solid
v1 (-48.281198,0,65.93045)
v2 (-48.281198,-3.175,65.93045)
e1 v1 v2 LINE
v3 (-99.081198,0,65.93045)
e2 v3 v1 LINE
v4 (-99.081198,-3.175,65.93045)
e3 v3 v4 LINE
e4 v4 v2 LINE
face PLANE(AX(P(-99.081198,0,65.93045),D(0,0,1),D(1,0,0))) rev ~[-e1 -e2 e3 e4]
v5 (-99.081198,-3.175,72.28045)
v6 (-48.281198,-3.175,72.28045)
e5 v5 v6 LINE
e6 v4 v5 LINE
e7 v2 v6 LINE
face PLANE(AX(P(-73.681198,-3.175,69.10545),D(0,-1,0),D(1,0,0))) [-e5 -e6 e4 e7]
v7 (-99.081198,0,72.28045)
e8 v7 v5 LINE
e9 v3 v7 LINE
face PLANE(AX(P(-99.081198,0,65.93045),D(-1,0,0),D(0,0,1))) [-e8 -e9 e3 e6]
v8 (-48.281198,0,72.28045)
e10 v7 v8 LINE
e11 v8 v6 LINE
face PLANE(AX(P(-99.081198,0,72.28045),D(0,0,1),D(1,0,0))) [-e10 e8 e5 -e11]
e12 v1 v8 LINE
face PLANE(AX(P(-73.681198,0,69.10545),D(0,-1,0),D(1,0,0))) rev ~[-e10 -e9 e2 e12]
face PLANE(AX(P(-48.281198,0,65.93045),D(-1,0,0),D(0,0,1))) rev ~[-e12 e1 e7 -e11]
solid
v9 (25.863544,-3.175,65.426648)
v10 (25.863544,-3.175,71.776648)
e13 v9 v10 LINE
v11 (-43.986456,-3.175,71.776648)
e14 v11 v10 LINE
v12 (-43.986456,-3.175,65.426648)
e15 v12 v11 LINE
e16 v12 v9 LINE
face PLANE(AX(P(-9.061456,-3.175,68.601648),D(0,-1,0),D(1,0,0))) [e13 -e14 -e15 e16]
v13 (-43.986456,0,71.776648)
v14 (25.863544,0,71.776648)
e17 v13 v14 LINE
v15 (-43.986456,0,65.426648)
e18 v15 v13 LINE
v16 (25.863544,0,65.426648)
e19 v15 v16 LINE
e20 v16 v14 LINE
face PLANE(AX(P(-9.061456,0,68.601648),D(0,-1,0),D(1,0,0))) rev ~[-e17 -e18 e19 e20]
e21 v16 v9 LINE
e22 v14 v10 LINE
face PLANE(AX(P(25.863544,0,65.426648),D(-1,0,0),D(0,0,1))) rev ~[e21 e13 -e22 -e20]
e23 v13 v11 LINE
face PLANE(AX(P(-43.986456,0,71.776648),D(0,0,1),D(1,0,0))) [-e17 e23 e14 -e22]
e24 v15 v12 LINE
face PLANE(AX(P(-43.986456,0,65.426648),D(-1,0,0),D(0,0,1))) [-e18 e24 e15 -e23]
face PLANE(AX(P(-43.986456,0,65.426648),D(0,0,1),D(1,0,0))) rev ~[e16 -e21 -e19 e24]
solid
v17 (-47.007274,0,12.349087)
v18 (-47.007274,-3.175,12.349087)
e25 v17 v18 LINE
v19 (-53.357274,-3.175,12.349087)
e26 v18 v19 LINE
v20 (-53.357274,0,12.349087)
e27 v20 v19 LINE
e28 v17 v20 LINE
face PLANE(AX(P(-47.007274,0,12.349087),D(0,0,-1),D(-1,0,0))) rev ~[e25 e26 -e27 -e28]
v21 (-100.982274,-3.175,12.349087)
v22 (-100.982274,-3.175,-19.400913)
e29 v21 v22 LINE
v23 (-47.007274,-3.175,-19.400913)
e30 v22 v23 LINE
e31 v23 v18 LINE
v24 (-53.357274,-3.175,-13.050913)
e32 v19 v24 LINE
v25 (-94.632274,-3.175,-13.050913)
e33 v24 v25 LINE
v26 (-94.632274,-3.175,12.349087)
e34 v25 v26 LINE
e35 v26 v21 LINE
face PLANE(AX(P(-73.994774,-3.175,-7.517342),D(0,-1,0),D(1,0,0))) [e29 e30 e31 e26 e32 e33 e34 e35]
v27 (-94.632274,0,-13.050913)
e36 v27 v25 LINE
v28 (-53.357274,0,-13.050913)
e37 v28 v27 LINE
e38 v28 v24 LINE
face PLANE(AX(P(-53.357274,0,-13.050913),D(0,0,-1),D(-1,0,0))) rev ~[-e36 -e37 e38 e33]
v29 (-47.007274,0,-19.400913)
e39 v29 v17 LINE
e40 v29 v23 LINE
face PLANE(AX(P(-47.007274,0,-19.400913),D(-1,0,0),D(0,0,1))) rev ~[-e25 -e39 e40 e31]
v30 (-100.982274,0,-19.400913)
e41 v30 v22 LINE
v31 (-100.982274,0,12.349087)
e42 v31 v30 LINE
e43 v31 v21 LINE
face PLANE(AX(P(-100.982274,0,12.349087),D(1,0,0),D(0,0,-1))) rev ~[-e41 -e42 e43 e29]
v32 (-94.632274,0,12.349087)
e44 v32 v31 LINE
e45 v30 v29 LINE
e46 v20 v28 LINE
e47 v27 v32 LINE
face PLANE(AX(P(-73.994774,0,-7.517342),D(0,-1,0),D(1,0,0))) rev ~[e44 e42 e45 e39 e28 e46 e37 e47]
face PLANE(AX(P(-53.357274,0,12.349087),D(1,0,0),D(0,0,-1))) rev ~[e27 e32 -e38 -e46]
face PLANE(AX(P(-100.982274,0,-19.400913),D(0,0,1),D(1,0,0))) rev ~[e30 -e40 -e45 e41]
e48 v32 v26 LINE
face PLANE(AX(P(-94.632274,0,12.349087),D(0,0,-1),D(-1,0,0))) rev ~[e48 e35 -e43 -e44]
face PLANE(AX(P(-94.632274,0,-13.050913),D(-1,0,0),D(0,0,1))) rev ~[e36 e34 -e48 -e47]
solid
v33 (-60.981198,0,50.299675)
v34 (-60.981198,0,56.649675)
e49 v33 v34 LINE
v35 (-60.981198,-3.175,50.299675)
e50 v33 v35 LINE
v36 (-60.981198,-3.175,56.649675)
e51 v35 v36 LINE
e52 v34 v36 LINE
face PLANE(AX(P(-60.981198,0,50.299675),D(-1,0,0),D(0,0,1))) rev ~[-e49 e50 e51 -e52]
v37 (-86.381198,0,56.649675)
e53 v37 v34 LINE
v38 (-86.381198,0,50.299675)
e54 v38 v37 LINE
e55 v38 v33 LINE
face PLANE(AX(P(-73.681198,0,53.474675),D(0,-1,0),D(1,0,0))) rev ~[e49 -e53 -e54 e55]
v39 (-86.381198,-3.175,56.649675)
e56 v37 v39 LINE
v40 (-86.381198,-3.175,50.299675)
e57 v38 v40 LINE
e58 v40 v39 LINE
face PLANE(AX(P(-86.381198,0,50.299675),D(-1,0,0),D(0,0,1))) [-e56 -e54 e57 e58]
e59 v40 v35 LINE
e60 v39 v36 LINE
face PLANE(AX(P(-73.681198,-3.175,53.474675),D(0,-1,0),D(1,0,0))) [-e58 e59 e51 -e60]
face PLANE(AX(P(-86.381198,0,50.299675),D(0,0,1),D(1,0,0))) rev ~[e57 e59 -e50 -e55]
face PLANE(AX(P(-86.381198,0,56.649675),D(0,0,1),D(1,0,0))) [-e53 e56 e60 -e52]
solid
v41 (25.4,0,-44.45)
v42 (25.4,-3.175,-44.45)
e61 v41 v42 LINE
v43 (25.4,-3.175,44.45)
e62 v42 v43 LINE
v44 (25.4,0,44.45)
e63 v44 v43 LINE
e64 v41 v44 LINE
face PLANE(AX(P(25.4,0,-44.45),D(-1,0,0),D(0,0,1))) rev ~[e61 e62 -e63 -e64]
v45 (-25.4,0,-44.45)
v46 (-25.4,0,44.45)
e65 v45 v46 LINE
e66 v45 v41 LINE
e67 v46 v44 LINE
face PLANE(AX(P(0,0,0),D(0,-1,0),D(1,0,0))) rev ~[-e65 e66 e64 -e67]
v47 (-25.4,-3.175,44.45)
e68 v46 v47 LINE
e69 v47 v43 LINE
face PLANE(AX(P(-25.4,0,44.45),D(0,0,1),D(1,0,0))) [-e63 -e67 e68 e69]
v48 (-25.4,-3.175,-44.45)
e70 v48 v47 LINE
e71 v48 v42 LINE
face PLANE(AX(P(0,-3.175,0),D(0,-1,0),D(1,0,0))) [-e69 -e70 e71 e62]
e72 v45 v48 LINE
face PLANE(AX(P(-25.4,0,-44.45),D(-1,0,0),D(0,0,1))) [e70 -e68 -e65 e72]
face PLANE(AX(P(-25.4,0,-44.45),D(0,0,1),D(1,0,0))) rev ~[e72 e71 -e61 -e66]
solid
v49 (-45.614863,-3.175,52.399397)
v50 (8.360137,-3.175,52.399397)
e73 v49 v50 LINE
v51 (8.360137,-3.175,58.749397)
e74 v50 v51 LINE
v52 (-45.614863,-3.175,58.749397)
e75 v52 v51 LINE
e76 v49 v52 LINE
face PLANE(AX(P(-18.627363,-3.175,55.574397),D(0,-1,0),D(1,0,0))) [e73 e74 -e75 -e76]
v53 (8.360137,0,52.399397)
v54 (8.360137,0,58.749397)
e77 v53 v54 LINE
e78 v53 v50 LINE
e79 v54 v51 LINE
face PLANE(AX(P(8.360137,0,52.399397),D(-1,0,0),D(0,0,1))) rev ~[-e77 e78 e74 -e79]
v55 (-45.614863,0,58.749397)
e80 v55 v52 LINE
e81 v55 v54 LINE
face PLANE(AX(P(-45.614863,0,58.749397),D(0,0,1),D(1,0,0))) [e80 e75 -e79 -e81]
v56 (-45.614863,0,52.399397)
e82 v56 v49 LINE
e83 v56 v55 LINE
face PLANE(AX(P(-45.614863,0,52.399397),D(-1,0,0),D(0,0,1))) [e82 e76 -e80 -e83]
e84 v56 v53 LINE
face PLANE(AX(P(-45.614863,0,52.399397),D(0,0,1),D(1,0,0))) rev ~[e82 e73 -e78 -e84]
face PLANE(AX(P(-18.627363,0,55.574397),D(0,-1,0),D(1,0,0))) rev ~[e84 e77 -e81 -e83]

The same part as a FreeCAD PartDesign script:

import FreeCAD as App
import Part
import Sketcher

V = App.Vector
Q = App.Units.Quantity

doc = App.newDocument("Part")
body = doc.addObject("PartDesign::Body", "Body")

# Sketch on XZ plane
sketch1 = doc.addObject("Sketcher::SketchObject", "Sketch")
body.addObject(sketch1)
sketch1.AttachmentSupport = (doc.XZ_Plane, [""])
sketch1.MapMode = "FlatFace"
sketch1.addGeometry([
    Part.LineSegment(V(-25, 44, 0), V(-25, -44, 0)),
    Part.LineSegment(V(-25, -44, 0), V(25, -44, 0)),
    Part.LineSegment(V(25, -44, 0), V(25, 44, 0)),
    Part.LineSegment(V(25, 44, 0), V(-25, 44, 0)),
], False)
sketch1.addConstraint([
    Sketcher.Constraint("Coincident", 0, 2, 1, 1),
    Sketcher.Constraint("Coincident", 1, 2, 2, 1),
    Sketcher.Constraint("Coincident", 2, 2, 3, 1),
    Sketcher.Constraint("Coincident", 3, 2, 0, 1),
    Sketcher.Constraint("Vertical", 0),
    Sketcher.Constraint("Horizontal", 1),
    Sketcher.Constraint("Vertical", 2),
    Sketcher.Constraint("Horizontal", 3),
    Sketcher.Constraint("Symmetric", 0, 2, 2, 2, -1, 1),
    Sketcher.Constraint("DistanceX", 1, 1, 1, 2, Q("2 in")),
    Sketcher.Constraint("DistanceY", 0, 2, 0, 1, Q("3.5 in")),
])
pad1 = doc.addObject("PartDesign::Pad", "Pad")
body.addObject(pad1)
pad1.Profile = sketch1
pad1.Length = Q("0.125 in")
body2 = doc.addObject("PartDesign::Body", "Body001")

# Sketch on XZ plane
sketch2 = doc.addObject("Sketcher::SketchObject", "Sketch001")
body2.addObject(sketch2)
sketch2.AttachmentSupport = (doc.getObject("XZ_Plane001"), [""])
sketch2.MapMode = "FlatFace"
sketch2.addGeometry([
    Part.LineSegment(V(-95, 12, 0), V(-101, 12, 0)),  # 0
    Part.LineSegment(V(-101, 12, 0), V(-101, -19, 0)),  # 1
    Part.LineSegment(V(-101, -19, 0), V(-47, -19, 0)),  # 2
    Part.LineSegment(V(-47, -19, 0), V(-47, 12, 0)),  # 3
    Part.LineSegment(V(-47, 12, 0), V(-53, 12, 0)),  # 4
    Part.LineSegment(V(-53, 12, 0), V(-53, -13, 0)),  # 5
    Part.LineSegment(V(-53, -13, 0), V(-95, -13, 0)),  # 6
    Part.LineSegment(V(-95, -13, 0), V(-95, 12, 0)),  # 7
], False)
sketch2.addConstraint([
    Sketcher.Constraint("Coincident", 0, 2, 1, 1),
    Sketcher.Constraint("Coincident", 1, 2, 2, 1),
    Sketcher.Constraint("Coincident", 2, 2, 3, 1),
    Sketcher.Constraint("Coincident", 3, 2, 4, 1),
    Sketcher.Constraint("Coincident", 4, 2, 5, 1),
    Sketcher.Constraint("Coincident", 5, 2, 6, 1),
    Sketcher.Constraint("Coincident", 6, 2, 7, 1),
    Sketcher.Constraint("Coincident", 7, 2, 0, 1),
    Sketcher.Constraint("Horizontal", 0),
    Sketcher.Constraint("Vertical", 1),
    Sketcher.Constraint("Horizontal", 2),
    Sketcher.Constraint("Vertical", 3),
    Sketcher.Constraint("Horizontal", 4),
    Sketcher.Constraint("Vertical", 5),
    Sketcher.Constraint("Horizontal", 6),
    Sketcher.Constraint("Vertical", 7),
    Sketcher.Constraint("Horizontal", 0, 2, 3, 2),
    Sketcher.Constraint("Equal", 0, 4),
    Sketcher.Constraint("DistanceY", 5, 2, 5, 1, Q("1 in")),
    Sketcher.Constraint("DistanceX", 0, 2, 0, 1, Q("0.25 in")),
    Sketcher.Constraint("DistanceY", 1, 2, 1, 1, Q("1.25 in")),
    Sketcher.Constraint("DistanceX", 2, 1, 2, 2, Q("2.125 in")),
    Sketcher.Constraint("DistanceX", 0, 2, -1, 1, 100.982274),
    Sketcher.Constraint("DistanceY", -1, 1, 0, 2, 12.349087),
])
pad2 = doc.addObject("PartDesign::Pad", "Pad001")
body2.addObject(pad2)
pad2.Profile = sketch2
pad2.Length = Q("0.125 in")
body3 = doc.addObject("PartDesign::Body", "Body002")
body3.AllowCompound = True

# Sketch on XZ plane
sketch3 = doc.addObject("Sketcher::SketchObject", "Sketch002")
body3.addObject(sketch3)
sketch3.AttachmentSupport = (doc.getObject("XZ_Plane002"), [""])
sketch3.MapMode = "FlatFace"
sketch3.addGeometry([
    Part.LineSegment(V(-99, 72, 0), V(-99, 66, 0)),  # 0
    Part.LineSegment(V(-99, 66, 0), V(-48, 66, 0)),  # 1
    Part.LineSegment(V(-48, 66, 0), V(-48, 72, 0)),  # 2
    Part.LineSegment(V(-48, 72, 0), V(-99, 72, 0)),  # 3
    Part.LineSegment(V(-86, 57, 0), V(-86, 50, 0)),  # 4
    Part.LineSegment(V(-86, 50, 0), V(-61, 50, 0)),  # 5
    Part.LineSegment(V(-61, 50, 0), V(-61, 57, 0)),  # 6
    Part.LineSegment(V(-61, 57, 0), V(-86, 57, 0)),  # 7
    Part.LineSegment(V(-46, 59, 0), V(-46, 52, 0)),  # 8
    Part.LineSegment(V(-46, 52, 0), V(8, 52, 0)),  # 9
    Part.LineSegment(V(8, 52, 0), V(8, 59, 0)),  # 10
    Part.LineSegment(V(8, 59, 0), V(-46, 59, 0)),  # 11
    Part.LineSegment(V(-44, 72, 0), V(-44, 65, 0)),  # 12
    Part.LineSegment(V(-44, 65, 0), V(26, 65, 0)),  # 13
    Part.LineSegment(V(26, 65, 0), V(26, 72, 0)),  # 14
    Part.LineSegment(V(26, 72, 0), V(-44, 72, 0)),  # 15
], False)
sketch3.addConstraint([
    Sketcher.Constraint("Coincident", 0, 2, 1, 1),
    Sketcher.Constraint("Coincident", 1, 2, 2, 1),
    Sketcher.Constraint("Coincident", 2, 2, 3, 1),
    Sketcher.Constraint("Coincident", 3, 2, 0, 1),
    Sketcher.Constraint("Coincident", 4, 2, 5, 1),
    Sketcher.Constraint("Coincident", 5, 2, 6, 1),
    Sketcher.Constraint("Coincident", 6, 2, 7, 1),
    Sketcher.Constraint("Coincident", 7, 2, 4, 1),
    Sketcher.Constraint("Coincident", 8, 2, 9, 1),
    Sketcher.Constraint("Coincident", 9, 2, 10, 1),
    Sketcher.Constraint("Coincident", 10, 2, 11, 1),
    Sketcher.Constraint("Coincident", 11, 2, 8, 1),
    Sketcher.Constraint("Coincident", 12, 2, 13, 1),
    Sketcher.Constraint("Coincident", 13, 2, 14, 1),
    Sketcher.Constraint("Coincident", 14, 2, 15, 1),
    Sketcher.Constraint("Coincident", 15, 2, 12, 1),
    Sketcher.Constraint("Vertical", 0),
    Sketcher.Constraint("Horizontal", 1),
    Sketcher.Constraint("Vertical", 2),
    Sketcher.Constraint("Horizontal", 3),
    Sketcher.Constraint("Vertical", 4),
    Sketcher.Constraint("Horizontal", 5),
    Sketcher.Constraint("Vertical", 6),
    Sketcher.Constraint("Horizontal", 7),
    Sketcher.Constraint("Vertical", 8),
    Sketcher.Constraint("Horizontal", 9),
    Sketcher.Constraint("Vertical", 10),
    Sketcher.Constraint("Horizontal", 11),
    Sketcher.Constraint("Vertical", 12),
    Sketcher.Constraint("Horizontal", 13),
    Sketcher.Constraint("Vertical", 14),
    Sketcher.Constraint("Horizontal", 15),
    Sketcher.Constraint("Equal", 2, 4),
    Sketcher.Constraint("Equal", 6, 8),
    Sketcher.Constraint("Equal", 10, 12),
    Sketcher.Constraint("DistanceX", 1, 1, 1, 2, Q("2 in")),
    Sketcher.Constraint("DistanceX", 5, 1, 5, 2, Q("1 in")),
    Sketcher.Constraint("DistanceX", 13, 1, 13, 2, Q("2.75 in")),
    Sketcher.Constraint("DistanceY", 0, 2, 0, 1, Q("0.25 in")),
    Sketcher.Constraint("DistanceX", 0, 2, 4, 2, Q("0.5 in")),
    Sketcher.Constraint("DistanceX", 9, 1, 9, 2, Q("2.125 in")),
    Sketcher.Constraint("DistanceX", 0, 2, -1, 1, 99.081198),
    Sketcher.Constraint("DistanceY", 12, 2, 1, 2, 0.503802),
    Sketcher.Constraint("DistanceY", -1, 1, 0, 2, 65.93045),
    Sketcher.Constraint("DistanceY", 5, 2, 8, 2, 2.099722),
    Sketcher.Constraint("DistanceY", 11, 2, 12, 2, 6.677251),
    Sketcher.Constraint("DistanceX", 8, 2, -1, 1, 45.614863),
    Sketcher.Constraint("DistanceX", 12, 2, -1, 1, 43.986456),
])
pad3 = doc.addObject("PartDesign::Pad", "Pad002")
body3.addObject(pad3)
pad3.Profile = sketch3
pad3.Length = Q("0.125 in")

doc.recompute()
